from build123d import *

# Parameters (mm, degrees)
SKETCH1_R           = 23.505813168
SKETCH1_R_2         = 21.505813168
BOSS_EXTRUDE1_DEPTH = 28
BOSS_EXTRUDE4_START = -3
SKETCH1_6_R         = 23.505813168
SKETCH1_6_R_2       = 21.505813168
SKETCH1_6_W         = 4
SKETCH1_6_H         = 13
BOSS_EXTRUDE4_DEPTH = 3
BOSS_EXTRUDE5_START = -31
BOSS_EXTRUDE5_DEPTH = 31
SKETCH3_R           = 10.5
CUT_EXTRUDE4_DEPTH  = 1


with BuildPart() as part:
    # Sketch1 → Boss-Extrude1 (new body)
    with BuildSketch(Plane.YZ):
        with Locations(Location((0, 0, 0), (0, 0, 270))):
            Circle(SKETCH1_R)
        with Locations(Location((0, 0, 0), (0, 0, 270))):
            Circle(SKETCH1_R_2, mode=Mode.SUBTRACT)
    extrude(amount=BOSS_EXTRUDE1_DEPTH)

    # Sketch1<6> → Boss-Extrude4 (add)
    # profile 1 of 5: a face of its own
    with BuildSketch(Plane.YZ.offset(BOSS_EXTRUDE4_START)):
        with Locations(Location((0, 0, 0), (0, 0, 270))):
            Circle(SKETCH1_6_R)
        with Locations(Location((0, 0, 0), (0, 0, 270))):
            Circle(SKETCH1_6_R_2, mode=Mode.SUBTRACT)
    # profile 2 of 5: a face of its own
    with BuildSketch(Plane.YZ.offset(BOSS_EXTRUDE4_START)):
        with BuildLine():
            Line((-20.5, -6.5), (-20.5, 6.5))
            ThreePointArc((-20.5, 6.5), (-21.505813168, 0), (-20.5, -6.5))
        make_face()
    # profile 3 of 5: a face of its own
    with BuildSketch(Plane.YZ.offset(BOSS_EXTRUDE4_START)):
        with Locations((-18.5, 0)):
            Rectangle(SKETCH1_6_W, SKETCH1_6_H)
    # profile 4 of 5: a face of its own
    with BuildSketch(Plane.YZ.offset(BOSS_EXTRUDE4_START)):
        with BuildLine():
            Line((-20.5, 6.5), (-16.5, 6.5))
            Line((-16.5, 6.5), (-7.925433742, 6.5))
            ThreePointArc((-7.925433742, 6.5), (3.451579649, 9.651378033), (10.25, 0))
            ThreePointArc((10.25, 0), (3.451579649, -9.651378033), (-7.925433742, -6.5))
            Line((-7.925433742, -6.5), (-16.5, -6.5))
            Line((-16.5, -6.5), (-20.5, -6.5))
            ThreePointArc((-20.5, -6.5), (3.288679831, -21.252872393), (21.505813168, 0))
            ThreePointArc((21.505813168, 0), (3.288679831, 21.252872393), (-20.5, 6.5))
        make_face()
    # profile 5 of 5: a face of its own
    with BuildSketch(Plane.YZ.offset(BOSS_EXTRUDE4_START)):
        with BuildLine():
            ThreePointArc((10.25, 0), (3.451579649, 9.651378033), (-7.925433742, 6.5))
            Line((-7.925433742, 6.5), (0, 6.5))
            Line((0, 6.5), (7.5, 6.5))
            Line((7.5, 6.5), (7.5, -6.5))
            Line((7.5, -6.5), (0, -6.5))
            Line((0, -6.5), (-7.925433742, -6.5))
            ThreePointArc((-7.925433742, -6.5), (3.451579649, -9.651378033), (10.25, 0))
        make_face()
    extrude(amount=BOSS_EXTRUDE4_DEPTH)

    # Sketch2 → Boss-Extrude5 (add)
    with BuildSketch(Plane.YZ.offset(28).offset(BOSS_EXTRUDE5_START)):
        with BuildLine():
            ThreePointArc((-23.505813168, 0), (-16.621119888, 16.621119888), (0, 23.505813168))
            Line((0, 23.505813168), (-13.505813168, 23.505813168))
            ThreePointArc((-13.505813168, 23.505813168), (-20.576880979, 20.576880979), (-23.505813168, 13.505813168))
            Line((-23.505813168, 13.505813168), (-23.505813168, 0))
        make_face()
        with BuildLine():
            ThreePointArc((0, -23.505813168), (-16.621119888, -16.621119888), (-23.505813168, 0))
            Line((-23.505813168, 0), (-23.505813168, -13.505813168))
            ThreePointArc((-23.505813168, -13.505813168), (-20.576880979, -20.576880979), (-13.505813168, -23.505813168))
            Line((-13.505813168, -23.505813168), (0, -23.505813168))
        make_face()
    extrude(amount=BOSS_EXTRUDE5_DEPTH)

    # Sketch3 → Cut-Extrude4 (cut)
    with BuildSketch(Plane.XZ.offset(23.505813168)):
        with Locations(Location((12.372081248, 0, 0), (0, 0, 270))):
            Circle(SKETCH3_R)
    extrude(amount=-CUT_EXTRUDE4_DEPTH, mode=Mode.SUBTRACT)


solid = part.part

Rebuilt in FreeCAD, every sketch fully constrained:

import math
import FreeCAD as App
import Part
import Sketcher
Q = App.Units.Quantity


def add_polygon(sketch, points):
    """Adds a closed chain of lines whose ends are joined by coincident constraints."""
    first, n = sketch.GeometryCount, len(points)
    for a, b in zip(points, points[1:] + points[:1]):
        sketch.addGeometry(Part.LineSegment(App.Vector(*a, 0), App.Vector(*b, 0)), False)
    for i in range(n):
        sketch.addConstraint(Sketcher.Constraint("Coincident", first + i, 2, first + (i + 1) % n, 1))

doc = App.newDocument("Part")
body = doc.addObject("PartDesign::Body", "Body")

# Sketch on YZ plane
sketch1 = body.newObject("Sketcher::SketchObject", "Sketch")
sketch1.AttachmentSupport = (doc.getObject("YZ_Plane"), [""])
sketch1.MapMode = "FlatFace"
sketch1.addGeometry(Part.Circle(App.Vector(0, 0, 0), App.Vector(0, 0, 1), 24), False)
sketch1.addGeometry(Part.Circle(App.Vector(0, 0, 0), App.Vector(0, 0, 1), 22), False)
sketch1.addConstraint(Sketcher.Constraint("Coincident", 0, 3, -1, 1))
sketch1.addConstraint(Sketcher.Constraint("Coincident", 1, 3, -1, 1))
sketch1.addConstraint(Sketcher.Constraint("Diameter", 0, Q("47.011626 mm")))
sketch1.addConstraint(Sketcher.Constraint("Diameter", 1, Q("43.011626 mm")))
pad1 = body.newObject("PartDesign::Pad", "Pad")
pad1.Profile = sketch1
pad1.Length = 28

# Sketch on YZ plane
sketch2 = body.newObject("Sketcher::SketchObject", "Sketch001")
sketch2.AttachmentSupport = (doc.getObject("YZ_Plane"), [""])
sketch2.MapMode = "FlatFace"
sketch2.AttachmentOffset = App.Placement(App.Vector(0, 0, -3), App.Rotation())
sketch2.addGeometry(Part.Circle(App.Vector(0, 0, 0), App.Vector(0, 0, 1), 24), False)  # 0
add_polygon(sketch2, [(-16, 6), (8, 6), (8, -6), (-16, -6)])  # lines 1-4
sketch2.addConstraint(Sketcher.Constraint("Horizontal", 1))
sketch2.addConstraint(Sketcher.Constraint("Vertical", 2))
sketch2.addConstraint(Sketcher.Constraint("Horizontal", 3))
sketch2.addConstraint(Sketcher.Constraint("Vertical", 4))
sketch2.addConstraint(Sketcher.Constraint("Coincident", 0, 3, -1, 1))
sketch2.addConstraint(Sketcher.Constraint("DistanceX", 1, 1, 1, 2, Q("24 mm")))
sketch2.addConstraint(Sketcher.Constraint("DistanceY", 2, 2, 2, 1, Q("13 mm")))
sketch2.addConstraint(Sketcher.Constraint("DistanceX", -1, 1, 1, 2, Q("7.5 mm")))
sketch2.addConstraint(Sketcher.Constraint("DistanceY", -1, 1, 1, 2, Q("6.5 mm")))
sketch2.addConstraint(Sketcher.Constraint("Diameter", 0, Q("47.011626 mm")))
pad2 = body.newObject("PartDesign::Pad", "Pad001")
pad2.Profile = sketch2
pad2.Length = 3

# Sketch on YZ plane
sketch3 = body.newObject("Sketcher::SketchObject", "Sketch002")
sketch3.AttachmentSupport = (doc.getObject("YZ_Plane"), [""])
sketch3.MapMode = "FlatFace"
sketch3.AttachmentOffset = App.Placement(App.Vector(0, 0, -3), App.Rotation())
sketch3.addGeometry(Part.ArcOfCircle(Part.Circle(App.Vector(0, 0, 0), App.Vector(0, 0, 1), 24), math.radians(90), math.radians(180)), False)
sketch3.addGeometry(Part.LineSegment(App.Vector(0, 24, 0), App.Vector(-14, 24, 0)), False)
sketch3.addGeometry(Part.ArcOfCircle(Part.Circle(App.Vector(-14, 14, 0), App.Vector(0, 0, 1), 10), math.radians(90), math.radians(180)), False)
sketch3.addGeometry(Part.LineSegment(App.Vector(-24, 14, 0), App.Vector(-24, 0, 0)), False)
sketch3.addGeometry(Part.ArcOfCircle(Part.Circle(App.Vector(0, 0, 0), App.Vector(0, 0, 1), 24), math.radians(-180), math.radians(-90)), False)
sketch3.addGeometry(Part.LineSegment(App.Vector(-24, 0, 0), App.Vector(-24, -14, 0)), False)
sketch3.addGeometry(Part.ArcOfCircle(Part.Circle(App.Vector(-14, -14, 0), App.Vector(0, 0, 1), 10), math.radians(-180), math.radians(-90)), False)
sketch3.addGeometry(Part.LineSegment(App.Vector(-14, -24, 0), App.Vector(0, -24, 0)), False)
sketch3.addConstraint(Sketcher.Constraint("Tangent", 0, 1, 1, 1))
sketch3.addConstraint(Sketcher.Constraint("Tangent", 1, 2, 2, 1))
sketch3.addConstraint(Sketcher.Constraint("Tangent", 2, 2, 3, 1))
sketch3.addConstraint(Sketcher.Constraint("Tangent", 3, 2, 0, 2))
sketch3.addConstraint(Sketcher.Constraint("Tangent", 4, 1, 5, 1))
sketch3.addConstraint(Sketcher.Constraint("Tangent", 5, 2, 6, 1))
sketch3.addConstraint(Sketcher.Constraint("Tangent", 6, 2, 7, 1))
sketch3.addConstraint(Sketcher.Constraint("Tangent", 7, 2, 4, 2))
sketch3.addConstraint(Sketcher.Constraint("Horizontal", 1))
sketch3.addConstraint(Sketcher.Constraint("Vertical", 3))
sketch3.addConstraint(Sketcher.Constraint("Vertical", 5))
sketch3.addConstraint(Sketcher.Constraint("Horizontal", 7))
sketch3.addConstraint(Sketcher.Constraint("Coincident", 0, 3, -1, 1))
sketch3.addConstraint(Sketcher.Constraint("Coincident", 4, 3, -1, 1))
sketch3.addConstraint(Sketcher.Constraint("Equal", 0, 4))
sketch3.addConstraint(Sketcher.Constraint("Equal", 2, 6))
sketch3.addConstraint(Sketcher.Constraint("Radius", 2, Q("10 mm")))
sketch3.addConstraint(Sketcher.Constraint("Radius", 0, Q("23.505813 mm")))
pad3 = body.newObject("PartDesign::Pad", "Pad002")
pad3.Profile = sketch3
pad3.Length = 31

# Sketch on XZ plane
sketch4 = body.newObject("Sketcher::SketchObject", "Sketch003")
sketch4.AttachmentSupport = (doc.getObject("XZ_Plane"), [""])
sketch4.MapMode = "FlatFace"
sketch4.AttachmentOffset = App.Placement(App.Vector(0, 0, 23.505813), App.Rotation())
sketch4.addGeometry(Part.Circle(App.Vector(12, 0, 0), App.Vector(0, 0, 1), 10), False)
sketch4.addConstraint(Sketcher.Constraint("PointOnObject", 0, 3, -1))
sketch4.addConstraint(Sketcher.Constraint("Diameter", 0, Q("21 mm")))
sketch4.addConstraint(Sketcher.Constraint("DistanceX", -1, 1, 0, 3, Q("12.372081 mm")))
pocket1 = body.newObject("PartDesign::Pocket", "Pocket")
pocket1.Profile = sketch4
pocket1.Length = 1

doc.recompute()
